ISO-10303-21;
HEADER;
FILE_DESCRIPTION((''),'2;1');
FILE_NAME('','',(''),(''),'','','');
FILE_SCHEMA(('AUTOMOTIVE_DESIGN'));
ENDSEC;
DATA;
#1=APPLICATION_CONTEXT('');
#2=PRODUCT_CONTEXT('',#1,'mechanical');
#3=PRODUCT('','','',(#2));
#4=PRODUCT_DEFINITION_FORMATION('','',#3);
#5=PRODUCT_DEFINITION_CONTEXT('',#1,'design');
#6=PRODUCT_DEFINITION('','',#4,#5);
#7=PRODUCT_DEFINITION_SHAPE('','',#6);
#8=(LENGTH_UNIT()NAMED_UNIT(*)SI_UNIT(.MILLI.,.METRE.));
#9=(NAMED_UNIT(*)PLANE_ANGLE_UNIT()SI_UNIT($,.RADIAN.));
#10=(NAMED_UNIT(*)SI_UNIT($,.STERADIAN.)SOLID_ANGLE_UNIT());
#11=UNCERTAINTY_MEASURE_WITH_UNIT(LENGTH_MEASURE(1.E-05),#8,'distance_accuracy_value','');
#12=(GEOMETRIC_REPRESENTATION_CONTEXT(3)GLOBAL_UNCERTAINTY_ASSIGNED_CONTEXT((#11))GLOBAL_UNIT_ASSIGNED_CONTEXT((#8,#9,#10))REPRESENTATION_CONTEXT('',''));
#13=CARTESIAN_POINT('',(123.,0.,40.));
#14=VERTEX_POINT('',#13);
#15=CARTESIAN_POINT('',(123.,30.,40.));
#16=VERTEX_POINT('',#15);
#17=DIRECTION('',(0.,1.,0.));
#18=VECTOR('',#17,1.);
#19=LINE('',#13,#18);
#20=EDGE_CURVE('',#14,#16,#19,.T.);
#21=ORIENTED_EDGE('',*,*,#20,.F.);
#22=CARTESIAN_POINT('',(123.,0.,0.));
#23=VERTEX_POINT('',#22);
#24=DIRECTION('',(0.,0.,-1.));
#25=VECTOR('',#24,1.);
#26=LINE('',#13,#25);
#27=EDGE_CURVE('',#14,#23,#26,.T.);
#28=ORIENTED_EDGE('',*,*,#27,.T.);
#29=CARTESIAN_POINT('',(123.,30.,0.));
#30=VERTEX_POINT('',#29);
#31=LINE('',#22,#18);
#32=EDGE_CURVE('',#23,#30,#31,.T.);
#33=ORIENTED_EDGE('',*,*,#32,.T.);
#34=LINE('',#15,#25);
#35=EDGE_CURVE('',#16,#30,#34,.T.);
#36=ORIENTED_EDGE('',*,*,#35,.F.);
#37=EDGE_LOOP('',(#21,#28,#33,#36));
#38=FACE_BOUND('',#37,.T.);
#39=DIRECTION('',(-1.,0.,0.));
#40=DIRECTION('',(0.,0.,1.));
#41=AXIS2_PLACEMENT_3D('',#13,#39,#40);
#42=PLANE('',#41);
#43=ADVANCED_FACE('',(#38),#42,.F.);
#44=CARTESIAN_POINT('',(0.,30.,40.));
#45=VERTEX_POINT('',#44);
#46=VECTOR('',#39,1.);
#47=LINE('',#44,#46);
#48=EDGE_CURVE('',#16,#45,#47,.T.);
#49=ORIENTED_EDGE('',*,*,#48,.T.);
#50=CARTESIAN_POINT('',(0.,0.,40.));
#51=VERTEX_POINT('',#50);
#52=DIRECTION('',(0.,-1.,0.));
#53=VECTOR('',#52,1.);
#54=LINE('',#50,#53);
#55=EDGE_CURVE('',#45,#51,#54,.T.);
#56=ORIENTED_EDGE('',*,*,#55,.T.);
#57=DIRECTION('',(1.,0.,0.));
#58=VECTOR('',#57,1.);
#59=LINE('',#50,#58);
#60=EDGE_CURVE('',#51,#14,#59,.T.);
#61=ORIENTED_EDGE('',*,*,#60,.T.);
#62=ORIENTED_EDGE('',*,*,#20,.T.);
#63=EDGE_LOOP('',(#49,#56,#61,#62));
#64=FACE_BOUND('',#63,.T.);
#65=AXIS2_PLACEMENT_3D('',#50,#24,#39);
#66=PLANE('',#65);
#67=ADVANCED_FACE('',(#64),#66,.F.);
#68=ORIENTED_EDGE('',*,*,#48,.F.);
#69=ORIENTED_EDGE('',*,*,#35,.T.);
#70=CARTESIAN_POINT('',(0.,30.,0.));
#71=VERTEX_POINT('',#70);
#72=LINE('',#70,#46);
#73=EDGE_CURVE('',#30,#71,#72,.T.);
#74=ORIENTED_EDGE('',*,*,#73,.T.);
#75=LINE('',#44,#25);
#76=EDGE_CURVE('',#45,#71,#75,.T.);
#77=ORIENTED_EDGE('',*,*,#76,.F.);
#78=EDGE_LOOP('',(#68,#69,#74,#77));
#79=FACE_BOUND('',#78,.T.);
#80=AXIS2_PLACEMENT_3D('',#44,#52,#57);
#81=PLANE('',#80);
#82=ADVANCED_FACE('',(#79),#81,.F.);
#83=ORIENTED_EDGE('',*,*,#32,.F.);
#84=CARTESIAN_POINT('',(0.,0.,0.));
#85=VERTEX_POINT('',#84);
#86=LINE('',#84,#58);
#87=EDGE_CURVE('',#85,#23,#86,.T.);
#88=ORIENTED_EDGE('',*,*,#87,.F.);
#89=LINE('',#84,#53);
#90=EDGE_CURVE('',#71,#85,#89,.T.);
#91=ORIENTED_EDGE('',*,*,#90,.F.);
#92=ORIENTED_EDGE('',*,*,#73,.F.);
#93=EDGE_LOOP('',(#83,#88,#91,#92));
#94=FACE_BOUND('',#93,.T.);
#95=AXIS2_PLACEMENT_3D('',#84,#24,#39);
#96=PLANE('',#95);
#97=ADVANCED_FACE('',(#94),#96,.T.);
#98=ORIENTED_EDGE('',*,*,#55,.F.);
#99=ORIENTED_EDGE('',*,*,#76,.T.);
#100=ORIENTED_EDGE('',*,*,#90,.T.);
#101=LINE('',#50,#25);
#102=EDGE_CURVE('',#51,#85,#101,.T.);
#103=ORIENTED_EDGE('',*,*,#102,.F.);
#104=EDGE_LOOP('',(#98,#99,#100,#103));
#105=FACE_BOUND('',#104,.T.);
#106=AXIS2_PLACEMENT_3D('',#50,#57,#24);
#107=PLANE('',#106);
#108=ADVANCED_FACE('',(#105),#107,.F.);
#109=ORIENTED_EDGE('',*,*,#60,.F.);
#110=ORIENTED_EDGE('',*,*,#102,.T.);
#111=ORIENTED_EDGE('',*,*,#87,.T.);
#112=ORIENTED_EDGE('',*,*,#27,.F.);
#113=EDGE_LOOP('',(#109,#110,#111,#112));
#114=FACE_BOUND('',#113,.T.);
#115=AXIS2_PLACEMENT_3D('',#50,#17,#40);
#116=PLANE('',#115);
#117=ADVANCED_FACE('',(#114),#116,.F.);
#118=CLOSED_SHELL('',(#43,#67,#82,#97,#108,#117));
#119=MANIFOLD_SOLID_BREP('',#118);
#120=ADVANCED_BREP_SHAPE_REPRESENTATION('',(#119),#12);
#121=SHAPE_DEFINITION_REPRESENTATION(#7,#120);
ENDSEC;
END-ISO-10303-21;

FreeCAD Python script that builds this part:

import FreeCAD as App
import Part
import Sketcher

V = App.Vector

doc = App.newDocument("Part")
body = doc.addObject("PartDesign::Body", "Body")

sketch1 = body.newObject("Sketcher::SketchObject", "Sketch")
sketch1.AttachmentSupport = (doc.getObject("XY_Plane"), [""])
sketch1.MapMode = "FlatFace"
sketch1.addGeometry([
    Part.LineSegment(V(0, 30, 0), V(0, 0, 0)),
    Part.LineSegment(V(0, 0, 0), V(123, 0, 0)),
    Part.LineSegment(V(123, 0, 0), V(123, 30, 0)),
    Part.LineSegment(V(123, 30, 0), V(0, 30, 0)),
], False)
sketch1.addConstraint([
    Sketcher.Constraint("Coincident", 0, 2, 1, 1),
    Sketcher.Constraint("Coincident", 1, 2, 2, 1),
    Sketcher.Constraint("Coincident", 2, 2, 3, 1),
    Sketcher.Constraint("Coincident", 3, 2, 0, 1),
    Sketcher.Constraint("Vertical", 0),
    Sketcher.Constraint("Horizontal", 1),
    Sketcher.Constraint("Vertical", 2),
    Sketcher.Constraint("Horizontal", 3),
    Sketcher.Constraint("Coincident", 0, 2, -1, 1),
    Sketcher.Constraint("DistanceX", 1, 1, 1, 2, 123.0),
    Sketcher.Constraint("DistanceY", 0, 2, 0, 1, 30.0),
])
pad1 = body.newObject("PartDesign::Pad", "Pad")
pad1.Profile = sketch1
pad1.Length = 40

doc.recompute()
